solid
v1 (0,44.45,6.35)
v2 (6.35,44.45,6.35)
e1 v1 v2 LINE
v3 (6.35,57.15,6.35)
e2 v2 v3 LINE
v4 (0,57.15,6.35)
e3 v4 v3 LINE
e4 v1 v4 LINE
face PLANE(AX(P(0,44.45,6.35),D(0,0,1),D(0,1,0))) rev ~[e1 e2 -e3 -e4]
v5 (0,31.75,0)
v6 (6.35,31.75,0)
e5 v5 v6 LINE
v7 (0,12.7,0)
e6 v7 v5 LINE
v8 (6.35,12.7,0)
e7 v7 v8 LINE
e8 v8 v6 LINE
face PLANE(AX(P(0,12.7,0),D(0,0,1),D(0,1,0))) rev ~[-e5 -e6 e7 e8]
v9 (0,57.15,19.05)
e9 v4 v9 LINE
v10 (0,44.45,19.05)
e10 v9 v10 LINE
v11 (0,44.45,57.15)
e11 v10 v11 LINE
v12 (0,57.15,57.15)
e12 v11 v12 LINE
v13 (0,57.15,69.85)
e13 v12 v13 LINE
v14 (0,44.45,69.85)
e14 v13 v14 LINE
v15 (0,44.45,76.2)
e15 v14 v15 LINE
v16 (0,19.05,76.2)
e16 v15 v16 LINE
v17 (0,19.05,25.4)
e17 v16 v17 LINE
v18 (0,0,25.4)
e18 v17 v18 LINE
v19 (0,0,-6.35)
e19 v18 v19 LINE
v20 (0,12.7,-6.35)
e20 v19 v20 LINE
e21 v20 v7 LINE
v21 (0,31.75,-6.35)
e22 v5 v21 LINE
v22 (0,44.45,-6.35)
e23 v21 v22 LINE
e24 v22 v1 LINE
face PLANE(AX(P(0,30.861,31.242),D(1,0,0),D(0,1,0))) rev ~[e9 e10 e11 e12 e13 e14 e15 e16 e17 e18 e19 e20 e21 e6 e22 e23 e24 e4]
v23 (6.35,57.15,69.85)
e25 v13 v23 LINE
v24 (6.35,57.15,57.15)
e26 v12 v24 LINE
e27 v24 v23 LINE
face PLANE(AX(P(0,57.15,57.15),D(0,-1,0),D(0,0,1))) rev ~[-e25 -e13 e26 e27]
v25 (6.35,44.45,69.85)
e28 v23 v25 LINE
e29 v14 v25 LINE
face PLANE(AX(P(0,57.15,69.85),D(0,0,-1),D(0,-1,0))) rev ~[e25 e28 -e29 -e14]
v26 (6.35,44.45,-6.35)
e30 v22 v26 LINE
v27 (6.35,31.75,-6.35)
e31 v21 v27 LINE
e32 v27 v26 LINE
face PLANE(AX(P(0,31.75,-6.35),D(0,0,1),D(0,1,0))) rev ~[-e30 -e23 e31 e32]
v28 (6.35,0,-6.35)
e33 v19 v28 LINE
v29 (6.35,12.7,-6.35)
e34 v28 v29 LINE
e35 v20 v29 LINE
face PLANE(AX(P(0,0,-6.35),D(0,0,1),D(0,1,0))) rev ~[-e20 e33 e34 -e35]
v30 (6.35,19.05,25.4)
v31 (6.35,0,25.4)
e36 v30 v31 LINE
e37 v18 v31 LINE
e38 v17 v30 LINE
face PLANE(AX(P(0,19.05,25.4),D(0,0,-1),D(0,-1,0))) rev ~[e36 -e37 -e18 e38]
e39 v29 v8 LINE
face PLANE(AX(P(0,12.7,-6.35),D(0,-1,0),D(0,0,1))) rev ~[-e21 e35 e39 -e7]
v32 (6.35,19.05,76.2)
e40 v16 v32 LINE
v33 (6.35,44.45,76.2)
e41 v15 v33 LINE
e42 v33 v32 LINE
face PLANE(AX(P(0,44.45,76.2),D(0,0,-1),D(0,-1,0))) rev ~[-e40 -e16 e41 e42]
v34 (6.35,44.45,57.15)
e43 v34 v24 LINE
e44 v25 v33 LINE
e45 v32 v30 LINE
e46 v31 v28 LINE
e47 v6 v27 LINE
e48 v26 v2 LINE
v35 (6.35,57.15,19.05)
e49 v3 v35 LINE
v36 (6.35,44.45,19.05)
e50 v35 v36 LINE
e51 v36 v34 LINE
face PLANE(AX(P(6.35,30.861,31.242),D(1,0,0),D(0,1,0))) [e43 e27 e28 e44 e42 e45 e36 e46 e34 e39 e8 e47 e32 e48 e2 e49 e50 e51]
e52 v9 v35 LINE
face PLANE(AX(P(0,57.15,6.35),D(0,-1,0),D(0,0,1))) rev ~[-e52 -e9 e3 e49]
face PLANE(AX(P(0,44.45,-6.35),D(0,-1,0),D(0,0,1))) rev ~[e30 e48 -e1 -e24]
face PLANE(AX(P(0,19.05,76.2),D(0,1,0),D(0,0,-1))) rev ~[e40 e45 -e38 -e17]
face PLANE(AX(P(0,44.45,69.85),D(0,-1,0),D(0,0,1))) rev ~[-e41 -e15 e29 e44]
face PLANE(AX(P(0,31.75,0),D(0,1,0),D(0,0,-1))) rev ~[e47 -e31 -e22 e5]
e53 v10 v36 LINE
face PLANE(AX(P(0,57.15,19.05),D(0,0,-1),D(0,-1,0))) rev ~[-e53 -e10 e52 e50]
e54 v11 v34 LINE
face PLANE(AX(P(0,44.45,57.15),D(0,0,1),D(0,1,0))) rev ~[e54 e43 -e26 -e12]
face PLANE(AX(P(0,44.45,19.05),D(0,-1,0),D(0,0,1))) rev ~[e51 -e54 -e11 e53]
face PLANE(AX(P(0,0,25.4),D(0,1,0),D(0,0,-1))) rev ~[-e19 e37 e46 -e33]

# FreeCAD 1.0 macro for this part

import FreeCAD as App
import Part
import Sketcher

V = App.Vector
Q = App.Units.Quantity

doc = App.newDocument("Part")
body = doc.addObject("PartDesign::Body", "Body")

# Sketch on YZ plane
sketch1 = body.newObject("Sketcher::SketchObject", "Sketch")
sketch1.AttachmentSupport = (doc.getObject("YZ_Plane"), [""])
sketch1.MapMode = "FlatFace"
sketch1.addGeometry(Part.LineSegment(V(0, 25, 0), V(0, -6, 0)), False)
sketch1.addGeometry(Part.LineSegment(V(0, -6, 0), V(13, -6, 0)), False)
sketch1.addGeometry(Part.LineSegment(V(13, -6, 0), V(13, 0, 0)), False)
sketch1.addGeometry(Part.LineSegment(V(13, 0, 0), V(32, 0, 0)), False)
sketch1.addGeometry(Part.LineSegment(V(32, 0, 0), V(32, -6, 0)), False)
sketch1.addGeometry(Part.LineSegment(V(32, -6, 0), V(44, -6, 0)), False)
sketch1.addGeometry(Part.LineSegment(V(44, -6, 0), V(44, 6, 0)), False)
sketch1.addGeometry(Part.LineSegment(V(44, 6, 0), V(57, 6, 0)), False)
sketch1.addGeometry(Part.LineSegment(V(57, 6, 0), V(57, 19, 0)), False)
sketch1.addGeometry(Part.LineSegment(V(57, 19, 0), V(44, 19, 0)), False)
sketch1.addGeometry(Part.LineSegment(V(44, 19, 0), V(44, 57, 0)), False)
sketch1.addGeometry(Part.LineSegment(V(44, 57, 0), V(57, 57, 0)), False)
sketch1.addGeometry(Part.LineSegment(V(57, 57, 0), V(57, 70, 0)), False)
sketch1.addGeometry(Part.LineSegment(V(57, 70, 0), V(44, 70, 0)), False)
sketch1.addGeometry(Part.LineSegment(V(44, 70, 0), V(44, 76, 0)), False)
sketch1.addGeometry(Part.LineSegment(V(44, 76, 0), V(19, 76, 0)), False)
sketch1.addGeometry(Part.LineSegment(V(19, 76, 0), V(19, 25, 0)), False)
sketch1.addGeometry(Part.LineSegment(V(19, 25, 0), V(0, 25, 0)), False)
sketch1.addConstraint(Sketcher.Constraint("Coincident", 0, 2, 1, 1))
sketch1.addConstraint(Sketcher.Constraint("Coincident", 1, 2, 2, 1))
sketch1.addConstraint(Sketcher.Constraint("Coincident", 2, 2, 3, 1))
sketch1.addConstraint(Sketcher.Constraint("Coincident", 3, 2, 4, 1))
sketch1.addConstraint(Sketcher.Constraint("Coincident", 4, 2, 5, 1))
sketch1.addConstraint(Sketcher.Constraint("Coincident", 5, 2, 6, 1))
sketch1.addConstraint(Sketcher.Constraint("Coincident", 6, 2, 7, 1))
sketch1.addConstraint(Sketcher.Constraint("Coincident", 7, 2, 8, 1))
sketch1.addConstraint(Sketcher.Constraint("Coincident", 8, 2, 9, 1))
sketch1.addConstraint(Sketcher.Constraint("Coincident", 9, 2, 10, 1))
sketch1.addConstraint(Sketcher.Constraint("Coincident", 10, 2, 11, 1))
sketch1.addConstraint(Sketcher.Constraint("Coincident", 11, 2, 12, 1))
sketch1.addConstraint(Sketcher.Constraint("Coincident", 12, 2, 13, 1))
sketch1.addConstraint(Sketcher.Constraint("Coincident", 13, 2, 14, 1))
sketch1.addConstraint(Sketcher.Constraint("Coincident", 14, 2, 15, 1))
sketch1.addConstraint(Sketcher.Constraint("Coincident", 15, 2, 16, 1))
sketch1.addConstraint(Sketcher.Constraint("Coincident", 16, 2, 17, 1))
sketch1.addConstraint(Sketcher.Constraint("Coincident", 17, 2, 0, 1))
sketch1.addConstraint(Sketcher.Constraint("Vertical", 0))
sketch1.addConstraint(Sketcher.Constraint("Horizontal", 1))
sketch1.addConstraint(Sketcher.Constraint("Vertical", 2))
sketch1.addConstraint(Sketcher.Constraint("Horizontal", 3))
sketch1.addConstraint(Sketcher.Constraint("Vertical", 4))
sketch1.addConstraint(Sketcher.Constraint("Horizontal", 5))
sketch1.addConstraint(Sketcher.Constraint("Vertical", 6))
sketch1.addConstraint(Sketcher.Constraint("Horizontal", 7))
sketch1.addConstraint(Sketcher.Constraint("Vertical", 8))
sketch1.addConstraint(Sketcher.Constraint("Horizontal", 9))
sketch1.addConstraint(Sketcher.Constraint("Vertical", 10))
sketch1.addConstraint(Sketcher.Constraint("Horizontal", 11))
sketch1.addConstraint(Sketcher.Constraint("Vertical", 12))
sketch1.addConstraint(Sketcher.Constraint("Horizontal", 13))
sketch1.addConstraint(Sketcher.Constraint("Vertical", 14))
sketch1.addConstraint(Sketcher.Constraint("Horizontal", 15))
sketch1.addConstraint(Sketcher.Constraint("Vertical", 16))
sketch1.addConstraint(Sketcher.Constraint("Horizontal", 17))
sketch1.addConstraint(Sketcher.Constraint("PointOnObject", 0, 2, -2))
sketch1.addConstraint(Sketcher.Constraint("PointOnObject", 2, 2, -1))
sketch1.addConstraint(Sketcher.Constraint("Horizontal", 1, 2, 4, 2))
sketch1.addConstraint(Sketcher.Constraint("Vertical", 6, 2, 9, 2))
sketch1.addConstraint(Sketcher.Constraint("Vertical", 8, 2, 11, 2))
sketch1.addConstraint(Sketcher.Constraint("Vertical", 10, 2, 13, 2))
sketch1.addConstraint(Sketcher.Constraint("Equal", 1, 5))
sketch1.addConstraint(Sketcher.Constraint("Equal", 5, 7))
sketch1.addConstraint(Sketcher.Constraint("Equal", 3, 17))
sketch1.addConstraint(Sketcher.Constraint("Equal", 13, 6))
sketch1.addConstraint(Sketcher.Constraint("Equal", 6, 8))
sketch1.addConstraint(Sketcher.Constraint("Equal", 8, 12))
sketch1.addConstraint(Sketcher.Constraint("Equal", 4, 14))
sketch1.addConstraint(Sketcher.Constraint("DistanceX", 15, 2, 15, 1, Q("1 in")))
sketch1.addConstraint(Sketcher.Constraint("DistanceY", 16, 2, 16, 1, Q("2 in")))
sketch1.addConstraint(Sketcher.Constraint("DistanceY", 10, 1, 10, 2, Q("1.5 in")))
sketch1.addConstraint(Sketcher.Constraint("DistanceX", 3, 1, 3, 2, Q("0.75 in")))
sketch1.addConstraint(Sketcher.Constraint("DistanceY", 0, 2, 0, 1, Q("1.25 in")))
pad1 = body.newObject("PartDesign::Pad", "Pad")
pad1.Profile = sketch1
pad1.Length = Q("0.25 in")

doc.recompute()
